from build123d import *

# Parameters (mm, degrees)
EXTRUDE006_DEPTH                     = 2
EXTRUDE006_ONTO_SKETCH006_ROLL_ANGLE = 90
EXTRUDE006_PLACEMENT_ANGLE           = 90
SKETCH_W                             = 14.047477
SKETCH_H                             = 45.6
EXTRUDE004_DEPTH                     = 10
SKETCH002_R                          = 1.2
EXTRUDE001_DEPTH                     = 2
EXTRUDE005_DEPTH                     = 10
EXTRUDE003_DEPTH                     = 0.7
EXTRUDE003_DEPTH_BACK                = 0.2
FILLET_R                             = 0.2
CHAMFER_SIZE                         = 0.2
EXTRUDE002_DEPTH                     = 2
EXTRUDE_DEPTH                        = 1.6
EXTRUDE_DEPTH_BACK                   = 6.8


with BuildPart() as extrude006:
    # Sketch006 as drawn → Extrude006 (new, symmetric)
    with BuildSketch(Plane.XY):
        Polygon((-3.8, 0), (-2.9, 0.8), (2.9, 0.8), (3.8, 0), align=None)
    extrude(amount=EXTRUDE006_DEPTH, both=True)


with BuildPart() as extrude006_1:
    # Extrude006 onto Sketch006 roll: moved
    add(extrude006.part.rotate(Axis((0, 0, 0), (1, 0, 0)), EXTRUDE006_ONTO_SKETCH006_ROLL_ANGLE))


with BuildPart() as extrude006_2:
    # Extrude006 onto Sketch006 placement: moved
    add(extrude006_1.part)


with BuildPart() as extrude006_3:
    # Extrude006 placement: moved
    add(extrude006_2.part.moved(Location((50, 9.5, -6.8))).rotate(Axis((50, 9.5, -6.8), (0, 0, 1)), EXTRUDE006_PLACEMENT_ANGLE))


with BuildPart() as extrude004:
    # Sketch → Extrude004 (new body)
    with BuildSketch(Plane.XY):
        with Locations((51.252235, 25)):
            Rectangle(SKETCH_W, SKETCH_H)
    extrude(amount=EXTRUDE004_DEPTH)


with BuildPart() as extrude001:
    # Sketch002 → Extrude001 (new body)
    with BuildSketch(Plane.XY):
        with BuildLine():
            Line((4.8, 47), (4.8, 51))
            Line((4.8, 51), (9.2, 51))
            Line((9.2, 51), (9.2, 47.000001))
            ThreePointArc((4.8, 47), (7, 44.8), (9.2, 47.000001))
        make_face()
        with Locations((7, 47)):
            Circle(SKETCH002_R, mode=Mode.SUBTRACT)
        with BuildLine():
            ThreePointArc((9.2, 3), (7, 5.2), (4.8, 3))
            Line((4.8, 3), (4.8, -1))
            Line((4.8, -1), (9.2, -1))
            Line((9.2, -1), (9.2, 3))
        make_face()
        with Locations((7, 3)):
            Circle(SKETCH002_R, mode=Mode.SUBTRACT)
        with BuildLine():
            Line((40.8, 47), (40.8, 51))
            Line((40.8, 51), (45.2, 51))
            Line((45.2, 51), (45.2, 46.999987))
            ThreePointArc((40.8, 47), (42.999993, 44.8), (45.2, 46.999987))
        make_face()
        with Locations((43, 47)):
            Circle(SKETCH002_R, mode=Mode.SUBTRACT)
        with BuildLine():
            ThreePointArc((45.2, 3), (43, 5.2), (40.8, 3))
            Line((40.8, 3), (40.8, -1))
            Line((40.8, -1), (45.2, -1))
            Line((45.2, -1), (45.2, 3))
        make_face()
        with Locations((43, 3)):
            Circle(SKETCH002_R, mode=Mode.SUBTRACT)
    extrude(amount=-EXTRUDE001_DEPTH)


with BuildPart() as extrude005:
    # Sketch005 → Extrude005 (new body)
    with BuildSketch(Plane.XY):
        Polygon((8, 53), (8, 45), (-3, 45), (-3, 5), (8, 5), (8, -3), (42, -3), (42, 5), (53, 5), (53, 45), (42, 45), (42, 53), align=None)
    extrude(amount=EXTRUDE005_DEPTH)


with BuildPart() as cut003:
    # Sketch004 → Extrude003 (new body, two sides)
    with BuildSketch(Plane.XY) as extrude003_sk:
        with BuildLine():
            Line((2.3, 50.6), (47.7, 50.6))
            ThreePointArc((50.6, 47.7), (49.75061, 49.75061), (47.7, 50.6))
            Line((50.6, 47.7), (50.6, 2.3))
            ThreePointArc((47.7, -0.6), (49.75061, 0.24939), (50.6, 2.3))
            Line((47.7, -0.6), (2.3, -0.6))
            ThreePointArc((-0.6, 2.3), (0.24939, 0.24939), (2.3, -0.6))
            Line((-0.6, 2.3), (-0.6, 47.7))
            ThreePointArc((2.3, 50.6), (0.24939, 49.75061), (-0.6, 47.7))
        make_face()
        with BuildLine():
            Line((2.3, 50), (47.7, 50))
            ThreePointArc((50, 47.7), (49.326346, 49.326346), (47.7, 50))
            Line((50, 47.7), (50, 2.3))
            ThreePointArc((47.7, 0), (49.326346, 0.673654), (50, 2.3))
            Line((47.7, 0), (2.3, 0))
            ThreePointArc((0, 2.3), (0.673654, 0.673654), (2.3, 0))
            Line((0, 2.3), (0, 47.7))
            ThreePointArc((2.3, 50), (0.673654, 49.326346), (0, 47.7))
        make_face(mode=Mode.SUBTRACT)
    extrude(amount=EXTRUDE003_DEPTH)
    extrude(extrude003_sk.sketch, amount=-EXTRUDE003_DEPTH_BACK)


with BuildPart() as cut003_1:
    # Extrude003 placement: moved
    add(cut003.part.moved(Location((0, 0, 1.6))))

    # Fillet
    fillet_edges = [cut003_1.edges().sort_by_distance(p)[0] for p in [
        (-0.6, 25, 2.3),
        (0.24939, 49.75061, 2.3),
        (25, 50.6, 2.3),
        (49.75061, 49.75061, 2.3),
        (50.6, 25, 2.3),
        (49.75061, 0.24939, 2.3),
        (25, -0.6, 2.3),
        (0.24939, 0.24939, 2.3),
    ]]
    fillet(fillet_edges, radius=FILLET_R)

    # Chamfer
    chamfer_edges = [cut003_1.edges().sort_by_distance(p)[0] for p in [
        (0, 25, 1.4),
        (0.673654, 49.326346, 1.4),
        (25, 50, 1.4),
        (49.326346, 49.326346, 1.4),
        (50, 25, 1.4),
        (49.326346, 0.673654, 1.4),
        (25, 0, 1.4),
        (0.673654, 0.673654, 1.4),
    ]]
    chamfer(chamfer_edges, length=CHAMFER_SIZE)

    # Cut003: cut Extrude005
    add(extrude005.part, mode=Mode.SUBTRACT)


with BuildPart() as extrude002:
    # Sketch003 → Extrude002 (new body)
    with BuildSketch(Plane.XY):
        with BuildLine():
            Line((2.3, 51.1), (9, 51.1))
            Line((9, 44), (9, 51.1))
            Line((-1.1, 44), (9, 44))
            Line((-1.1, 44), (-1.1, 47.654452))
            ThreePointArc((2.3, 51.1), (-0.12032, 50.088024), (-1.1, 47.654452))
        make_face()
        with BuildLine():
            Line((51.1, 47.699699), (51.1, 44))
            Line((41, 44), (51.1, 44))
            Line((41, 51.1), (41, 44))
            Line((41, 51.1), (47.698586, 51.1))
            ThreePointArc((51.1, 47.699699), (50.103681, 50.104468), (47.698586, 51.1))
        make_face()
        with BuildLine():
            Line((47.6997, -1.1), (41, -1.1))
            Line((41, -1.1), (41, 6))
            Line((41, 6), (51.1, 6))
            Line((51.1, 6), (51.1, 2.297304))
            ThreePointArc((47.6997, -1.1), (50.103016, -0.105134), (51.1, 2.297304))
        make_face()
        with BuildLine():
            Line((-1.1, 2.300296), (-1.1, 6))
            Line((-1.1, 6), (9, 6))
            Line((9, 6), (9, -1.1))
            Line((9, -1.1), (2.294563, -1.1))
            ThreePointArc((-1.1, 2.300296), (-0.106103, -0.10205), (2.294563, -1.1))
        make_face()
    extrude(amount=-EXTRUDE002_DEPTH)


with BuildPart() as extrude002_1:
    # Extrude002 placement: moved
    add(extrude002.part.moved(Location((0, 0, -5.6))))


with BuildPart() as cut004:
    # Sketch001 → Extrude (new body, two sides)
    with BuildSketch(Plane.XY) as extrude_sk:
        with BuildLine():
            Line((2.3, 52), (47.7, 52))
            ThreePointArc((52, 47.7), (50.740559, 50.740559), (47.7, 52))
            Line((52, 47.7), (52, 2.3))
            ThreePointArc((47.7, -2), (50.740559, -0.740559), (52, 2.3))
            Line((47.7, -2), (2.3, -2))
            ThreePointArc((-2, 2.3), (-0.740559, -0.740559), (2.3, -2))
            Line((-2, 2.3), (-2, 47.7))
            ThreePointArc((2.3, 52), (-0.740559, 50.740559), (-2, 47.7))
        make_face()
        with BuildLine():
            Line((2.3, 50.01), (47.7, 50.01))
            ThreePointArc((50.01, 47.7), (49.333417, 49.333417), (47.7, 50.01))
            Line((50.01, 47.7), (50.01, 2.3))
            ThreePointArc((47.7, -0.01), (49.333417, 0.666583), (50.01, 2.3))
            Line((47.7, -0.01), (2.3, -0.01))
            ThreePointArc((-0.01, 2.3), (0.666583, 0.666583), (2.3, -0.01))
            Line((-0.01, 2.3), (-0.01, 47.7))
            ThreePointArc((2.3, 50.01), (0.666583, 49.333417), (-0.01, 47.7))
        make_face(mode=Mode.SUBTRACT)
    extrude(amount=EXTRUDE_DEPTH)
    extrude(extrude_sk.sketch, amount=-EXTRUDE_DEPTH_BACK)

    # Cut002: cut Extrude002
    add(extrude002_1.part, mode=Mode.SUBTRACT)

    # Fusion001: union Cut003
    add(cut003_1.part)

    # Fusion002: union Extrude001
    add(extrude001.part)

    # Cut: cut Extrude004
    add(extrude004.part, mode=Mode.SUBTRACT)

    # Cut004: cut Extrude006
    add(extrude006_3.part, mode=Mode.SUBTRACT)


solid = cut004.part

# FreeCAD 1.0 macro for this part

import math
import FreeCAD as App
import Part
import Sketcher
Q = App.Units.Quantity


def edges_at(feature, points):
    """Names of the edges that pass closest to the given points."""
    edges = feature.Shape.Edges
    near = lambda p: min(range(len(edges)), key=lambda i: edges[i].distToShape(Part.Vertex(*p))[0])
    return sorted({f"Edge{near(p) + 1}" for p in points})


def add_polygon(sketch, points):
    """Adds a closed chain of lines whose ends are joined by coincident constraints."""
    first, n = sketch.GeometryCount, len(points)
    for a, b in zip(points, points[1:] + points[:1]):
        sketch.addGeometry(Part.LineSegment(App.Vector(*a, 0), App.Vector(*b, 0)), False)
    for i in range(n):
        sketch.addConstraint(Sketcher.Constraint("Coincident", first + i, 2, first + (i + 1) % n, 1))

doc = App.newDocument("Part")
body = doc.addObject("PartDesign::Body", "Body")

# Sketch on XY plane
sketch1 = body.newObject("Sketcher::SketchObject", "Sketch")
sketch1.AttachmentSupport = (doc.getObject("XY_Plane"), [""])
sketch1.MapMode = "FlatFace"
add_polygon(sketch1, [(-2.9, 0.8), (-3.8, 0), (3.8, 0), (2.9, 0.8)])  # lines 0-3
sketch1.addConstraint([
    Sketcher.Constraint("Horizontal", 1),
    Sketcher.Constraint("Horizontal", 3),
    Sketcher.Constraint("Symmetric", 0, 2, 1, 2, -1, 1),
    Sketcher.Constraint("Equal", 0, 2),
    Sketcher.Constraint("DistanceX", 1, 1, 1, 2, Q("7.6 mm")),
    Sketcher.Constraint("DistanceX", 3, 2, 3, 1, Q("5.8 mm")),
    Sketcher.Constraint("DistanceY", -1, 1, 2, 2, Q("0.8 mm")),
])
pad1 = body.newObject("PartDesign::Pad", "Pad")
pad1.Profile = sketch1
pad1.Length = 4
pad1.Midplane = True
body2 = doc.addObject("PartDesign::Body", "Body001")
doc.recompute()

body.Placement = App.Placement(App.Vector(0, 0, 0), App.Rotation(App.Vector(1, 0, 0), 90))
boolean = body2.newObject("PartDesign::Boolean", "Boolean")
boolean.Type = "Fuse"
boolean.addObjects([body])
body3 = doc.addObject("PartDesign::Body", "Body002")
doc.recompute()

body2.Placement = App.Placement(App.Vector(50, 9.5, -6.8), App.Rotation(App.Vector(0, 0, 1), 90))
boolean2 = body3.newObject("PartDesign::Boolean", "Boolean001")
boolean2.Type = "Fuse"
boolean2.addObjects([body2])
body4 = doc.addObject("PartDesign::Body", "Body003")

# Sketch on XY plane
sketch2 = body4.newObject("Sketcher::SketchObject", "Sketch001")
sketch2.AttachmentSupport = (doc.getObject("XY_Plane003"), [""])
sketch2.MapMode = "FlatFace"
add_polygon(sketch2, [(44, 48), (44, 2), (58, 2), (58, 48)])  # lines 0-3
sketch2.addConstraint([
    Sketcher.Constraint("Vertical", 0),
    Sketcher.Constraint("Horizontal", 1),
    Sketcher.Constraint("Vertical", 2),
    Sketcher.Constraint("Horizontal", 3),
    Sketcher.Constraint("DistanceY", 0, 2, 0, 1, Q("45.6 mm")),
    Sketcher.Constraint("DistanceY", -1, 1, 0, 2, Q("2.2 mm")),
    Sketcher.Constraint("DistanceX", 1, 1, 1, 2, Q("14.047477 mm")),
    Sketcher.Constraint("DistanceX", -1, 1, 0, 2, Q("44.228496 mm")),
])
pad2 = body4.newObject("PartDesign::Pad", "Pad001")
pad2.Profile = sketch2
pad2.Length = 10
body5 = doc.addObject("PartDesign::Body", "Body004")
body5.AllowCompound = True

# Sketch on XY plane
sketch3 = body5.newObject("Sketcher::SketchObject", "Sketch002")
sketch3.AttachmentSupport = (doc.getObject("XY_Plane004"), [""])
sketch3.MapMode = "FlatFace"
sketch3.addGeometry([
    Part.LineSegment(App.Vector(4.8, 51, 0), App.Vector(4.8, 47, 0)),  # 0
    Part.ArcOfCircle(Part.Circle(App.Vector(7, 47, 0), App.Vector(0, 0, 1), 2.2), math.radians(180), math.radians(360)),  # 1
    Part.LineSegment(App.Vector(9.2, 47, 0), App.Vector(9.2, 51, 0)),  # 2
    Part.LineSegment(App.Vector(9.2, 51, 0), App.Vector(4.8, 51, 0)),  # 3
    Part.Circle(App.Vector(7, 47, 0), App.Vector(0, 0, 1), 1.2),  # 4
    Part.ArcOfCircle(Part.Circle(App.Vector(7, 3, 0), App.Vector(0, 0, 1), 2.2), math.radians(0), math.radians(180)),  # 5
    Part.LineSegment(App.Vector(4.8, 3, 0), App.Vector(4.8, -1, 0)),  # 6
    Part.LineSegment(App.Vector(4.8, -1, 0), App.Vector(9.2, -1, 0)),  # 7
    Part.LineSegment(App.Vector(9.2, -1, 0), App.Vector(9.2, 3, 0)),  # 8
    Part.Circle(App.Vector(7, 3, 0), App.Vector(0, 0, 1), 1.2),  # 9
    Part.LineSegment(App.Vector(40.8, 51, 0), App.Vector(40.8, 47, 0)),  # 10
    Part.ArcOfCircle(Part.Circle(App.Vector(43, 47, 0), App.Vector(0, 0, 1), 2.2), math.radians(180), math.radians(360)),  # 11
    Part.LineSegment(App.Vector(45.2, 47, 0), App.Vector(45.2, 51, 0)),  # 12
    Part.LineSegment(App.Vector(45.2, 51, 0), App.Vector(40.8, 51, 0)),  # 13
    Part.Circle(App.Vector(43, 47, 0), App.Vector(0, 0, 1), 1.2),  # 14
    Part.ArcOfCircle(Part.Circle(App.Vector(43, 3, 0), App.Vector(0, 0, 1), 2.2), math.radians(0), math.radians(180)),  # 15
    Part.LineSegment(App.Vector(40.8, 3, 0), App.Vector(40.8, -1, 0)),  # 16
    Part.LineSegment(App.Vector(40.8, -1, 0), App.Vector(45.2, -1, 0)),  # 17
    Part.LineSegment(App.Vector(45.2, -1, 0), App.Vector(45.2, 3, 0)),  # 18
    Part.Circle(App.Vector(43, 3, 0), App.Vector(0, 0, 1), 1.2),  # 19
], False)
sketch3.addConstraint([
    Sketcher.Constraint("Tangent", 0, 2, 1, 1),
    Sketcher.Constraint("Tangent", 1, 2, 2, 1),
    Sketcher.Constraint("Coincident", 2, 2, 3, 1),
    Sketcher.Constraint("Coincident", 3, 2, 0, 1),
    Sketcher.Constraint("Tangent", 5, 2, 6, 1),
    Sketcher.Constraint("Coincident", 6, 2, 7, 1),
    Sketcher.Constraint("Coincident", 7, 2, 8, 1),
    Sketcher.Constraint("Tangent", 8, 2, 5, 1),
    Sketcher.Constraint("Tangent", 10, 2, 11, 1),
    Sketcher.Constraint("Coincident", 11, 2, 12, 1),
    Sketcher.Constraint("Coincident", 12, 2, 13, 1),
    Sketcher.Constraint("Coincident", 13, 2, 10, 1),
    Sketcher.Constraint("Tangent", 15, 2, 16, 1),
    Sketcher.Constraint("Coincident", 16, 2, 17, 1),
    Sketcher.Constraint("Coincident", 17, 2, 18, 1),
    Sketcher.Constraint("Tangent", 18, 2, 15, 1),
    Sketcher.Constraint("Vertical", 0),
    Sketcher.Constraint("Vertical", 2),
    Sketcher.Constraint("Horizontal", 3),
    Sketcher.Constraint("Vertical", 6),
    Sketcher.Constraint("Horizontal", 7),
    Sketcher.Constraint("Vertical", 8),
    Sketcher.Constraint("Vertical", 10),
    Sketcher.Constraint("Vertical", 12),
    Sketcher.Constraint("Horizontal", 13),
    Sketcher.Constraint("Vertical", 16),
    Sketcher.Constraint("Horizontal", 17),
    Sketcher.Constraint("Vertical", 18),
    Sketcher.Constraint("Coincident", 4, 3, 1, 3),
    Sketcher.Constraint("Coincident", 9, 3, 5, 3),
    Sketcher.Constraint("Coincident", 14, 3, 11, 3),
    Sketcher.Constraint("Coincident", 19, 3, 15, 3),
    Sketcher.Constraint("Equal", 1, 5),
    Sketcher.Constraint("Equal", 4, 9),
    Sketcher.Constraint("Equal", 5, 11),
    Sketcher.Constraint("Equal", 9, 14),
    Sketcher.Constraint("Equal", 11, 15),
    Sketcher.Constraint("Equal", 14, 19),
    Sketcher.Constraint("Horizontal", 4, 3, 11, 3),
    Sketcher.Constraint("Horizontal", 9, 3, 15, 3),
    Sketcher.Constraint("Horizontal", 3, 2, 12, 2),
    Sketcher.Constraint("Horizontal", 7, 2, 16, 2),
    Sketcher.Constraint("Vertical", 4, 3, 5, 3),
    Sketcher.Constraint("Vertical", 14, 3, 15, 3),
    Sketcher.Constraint("Equal", 2, 6),
    Sketcher.Constraint("Diameter", 4, Q("2.4 mm")),
    Sketcher.Constraint("Radius", 1, Q("2.2 mm")),
    Sketcher.Constraint("DistanceY", 0, 2, 0, 1, Q("4 mm")),
    Sketcher.Constraint("DistanceX", -1, 1, 1, 3, Q("7 mm")),
    Sketcher.Constraint("DistanceY", -1, 1, 1, 3, Q("47 mm")),
    Sketcher.Constraint("DistanceY", -1, 1, 5, 3, Q("3 mm")),
    Sketcher.Constraint("DistanceX", -1, 1, 11, 3, Q("43 mm")),
    Sketcher.Constraint("DistanceY", 12, 1, 12, 2, Q("4.000013 mm")),
])
pad3 = body5.newObject("PartDesign::Pad", "Pad002")
pad3.Profile = sketch3
pad3.Length = 2
pad3.Reversed = True
body6 = doc.addObject("PartDesign::Body", "Body005")

# Sketch on XY plane
sketch4 = body6.newObject("Sketcher::SketchObject", "Sketch003")
sketch4.AttachmentSupport = (doc.getObject("XY_Plane005"), [""])
sketch4.MapMode = "FlatFace"
add_polygon(sketch4, [(8, 53), (8, 45), (-3, 45), (-3, 5), (8, 5), (8, -3), (42, -3), (42, 5), (53, 5), (53, 45), (42, 45), (42, 53)])  # lines 0-11
sketch4.addConstraint([
    Sketcher.Constraint("Vertical", 0),
    Sketcher.Constraint("Horizontal", 1),
    Sketcher.Constraint("Vertical", 2),
    Sketcher.Constraint("Horizontal", 3),
    Sketcher.Constraint("Vertical", 4),
    Sketcher.Constraint("Horizontal", 5),
    Sketcher.Constraint("Vertical", 6),
    Sketcher.Constraint("Horizontal", 7),
    Sketcher.Constraint("Vertical", 8),
    Sketcher.Constraint("Horizontal", 9),
    Sketcher.Constraint("Vertical", 10),
    Sketcher.Constraint("Horizontal", 11),
    Sketcher.Constraint("Horizontal", 3, 2, 6, 2),
    Sketcher.Constraint("Horizontal", 1, 2, 8, 2),
    Sketcher.Constraint("Vertical", 0, 2, 3, 2),
    Sketcher.Constraint("Vertical", 6, 2, 9, 2),
    Sketcher.Constraint("Equal", 3, 7),
    Sketcher.Constraint("Equal", 0, 4),
    Sketcher.Constraint("DistanceX", 1, 2, 1, 1, Q("11 mm")),
    Sketcher.Constraint("DistanceX", 5, 1, 5, 2, Q("34 mm")),
    Sketcher.Constraint("DistanceY", 0, 2, 0, 1, Q("8 mm")),
    Sketcher.Constraint("DistanceY", 2, 2, 2, 1, Q("40 mm")),
    Sketcher.Constraint("DistanceX", -1, 1, 0, 2, Q("8 mm")),
    Sketcher.Constraint("DistanceY", -1, 1, 0, 2, Q("45 mm")),
])
pad4 = body6.newObject("PartDesign::Pad", "Pad003")
pad4.Profile = sketch4
pad4.Length = 10
body7 = doc.addObject("PartDesign::Body", "Body006")

# Sketch on XY plane
sketch5 = body7.newObject("Sketcher::SketchObject", "Sketch004")
sketch5.AttachmentSupport = (doc.getObject("XY_Plane006"), [""])
sketch5.MapMode = "FlatFace"
sketch5.addGeometry([
    Part.LineSegment(App.Vector(47.7, 50.6, 0), App.Vector(2.3, 50.6, 0)),  # 0
    Part.ArcOfCircle(Part.Circle(App.Vector(2.3, 47.7, 0), App.Vector(0, 0, 1), 2.9), math.radians(90), math.radians(180)),  # 1
    Part.LineSegment(App.Vector(-0.6, 47.7, 0), App.Vector(-0.6, 2.3, 0)),  # 2
    Part.ArcOfCircle(Part.Circle(App.Vector(2.3, 2.3, 0), App.Vector(0, 0, 1), 2.9), math.radians(180), math.radians(270)),  # 3
    Part.LineSegment(App.Vector(2.3, -0.6, 0), App.Vector(47.7, -0.6, 0)),  # 4
    Part.ArcOfCircle(Part.Circle(App.Vector(47.7, 2.3, 0), App.Vector(0, 0, 1), 2.9), math.radians(-90), math.radians(0)),  # 5
    Part.LineSegment(App.Vector(50.6, 2.3, 0), App.Vector(50.6, 47.7, 0)),  # 6
    Part.ArcOfCircle(Part.Circle(App.Vector(47.7, 47.7, 0), App.Vector(0, 0, 1), 2.9), math.radians(0), math.radians(90)),  # 7
    Part.LineSegment(App.Vector(2.3, 50, 0), App.Vector(47.7, 50, 0)),  # 8
    Part.ArcOfCircle(Part.Circle(App.Vector(47.7, 47.7, 0), App.Vector(0, 0, 1), 2.3), math.radians(0), math.radians(90)),  # 9
    Part.LineSegment(App.Vector(50, 47.7, 0), App.Vector(50, 2.3, 0)),  # 10
    Part.ArcOfCircle(Part.Circle(App.Vector(47.7, 2.3, 0), App.Vector(0, 0, 1), 2.3), math.radians(-90), math.radians(0)),  # 11
    Part.LineSegment(App.Vector(47.7, 0, 0), App.Vector(2.3, 0, 0)),  # 12
    Part.ArcOfCircle(Part.Circle(App.Vector(2.3, 2.3, 0), App.Vector(0, 0, 1), 2.3), math.radians(180), math.radians(270)),  # 13
    Part.LineSegment(App.Vector(0, 2.3, 0), App.Vector(0, 47.7, 0)),  # 14
    Part.ArcOfCircle(Part.Circle(App.Vector(2.3, 47.7, 0), App.Vector(0, 0, 1), 2.3), math.radians(90), math.radians(180)),  # 15
], False)
sketch5.addConstraint([
    Sketcher.Constraint("Tangent", 0, 2, 1, 1),
    Sketcher.Constraint("Tangent", 1, 2, 2, 1),
    Sketcher.Constraint("Tangent", 2, 2, 3, 1),
    Sketcher.Constraint("Tangent", 3, 2, 4, 1),
    Sketcher.Constraint("Tangent", 4, 2, 5, 1),
    Sketcher.Constraint("Tangent", 5, 2, 6, 1),
    Sketcher.Constraint("Tangent", 6, 2, 7, 1),
    Sketcher.Constraint("Tangent", 7, 2, 0, 1),
    Sketcher.Constraint("Tangent", 8, 2, 9, 2),
    Sketcher.Constraint("Tangent", 9, 1, 10, 1),
    Sketcher.Constraint("Tangent", 10, 2, 11, 2),
    Sketcher.Constraint("Tangent", 11, 1, 12, 1),
    Sketcher.Constraint("Tangent", 12, 2, 13, 2),
    Sketcher.Constraint("Tangent", 13, 1, 14, 1),
    Sketcher.Constraint("Tangent", 14, 2, 15, 2),
    Sketcher.Constraint("Tangent", 15, 1, 8, 1),
    Sketcher.Constraint("Horizontal", 0),
    Sketcher.Constraint("Vertical", 2),
    Sketcher.Constraint("Horizontal", 4),
    Sketcher.Constraint("Vertical", 6),
    Sketcher.Constraint("Horizontal", 8),
    Sketcher.Constraint("Vertical", 10),
    Sketcher.Constraint("Horizontal", 12),
    Sketcher.Constraint("Vertical", 14),
    Sketcher.Constraint("Coincident", 9, 3, 7, 3),
    Sketcher.Constraint("Coincident", 11, 3, 5, 3),
    Sketcher.Constraint("Coincident", 13, 3, 3, 3),
    Sketcher.Constraint("Equal", 1, 3),
    Sketcher.Constraint("Equal", 3, 5),
    Sketcher.Constraint("Equal", 5, 7),
    Sketcher.Constraint("Equal", 13, 15),
    Sketcher.Constraint("PointOnObject", 11, 1, -1),
    Sketcher.Constraint("PointOnObject", 13, 1, -2),
    Sketcher.Constraint("Equal", 12, 2),
    Sketcher.Constraint("Radius", 1, Q("2.899999 mm")),
    Sketcher.Constraint("Radius", 9, Q("2.299999 mm")),
    Sketcher.Constraint("DistanceX", 0, 2, 0, 1, Q("45.4 mm")),
])
pad5 = body7.newObject("PartDesign::Pad", "Pad004")
pad5.Profile = sketch5
pad5.Type = "TwoLengths"
pad5.Length = 0.7
pad5.Length2 = 0.2
body8 = doc.addObject("PartDesign::Body", "Body007")
body8.AllowCompound = True
doc.recompute()

body7.Placement = App.Placement(App.Vector(0, 0, 1.6), App.Rotation(App.Vector(0, 0, 1), 0))
boolean3 = body8.newObject("PartDesign::Boolean", "Boolean002")
boolean3.Type = "Fuse"
boolean3.addObjects([body7])
doc.recompute()

fillet = body8.newObject("PartDesign::Fillet", "Fillet")
fillet.Base = (boolean3, edges_at(boolean3, [
    (-0.6, 25, 2.3),
    (0.249, 49.751, 2.3),
    (25, 50.6, 2.3),
    (49.751, 49.751, 2.3),
    (50.6, 25, 2.3),
    (49.751, 0.249, 2.3),
    (25, -0.6, 2.3),
    (0.249, 0.249, 2.3),
]))
fillet.Radius = 0.2
doc.recompute()

chamfer = body8.newObject("PartDesign::Chamfer", "Chamfer")
chamfer.Base = (fillet, edges_at(fillet, [
    (0, 25, 1.4),
    (0.674, 49.326, 1.4),
    (25, 50, 1.4),
    (49.326, 49.326, 1.4),
    (50, 25, 1.4),
    (49.326, 0.674, 1.4),
    (25, 0, 1.4),
    (0.674, 0.674, 1.4),
]))
chamfer.Size = 0.2
doc.recompute()

boolean4 = body8.newObject("PartDesign::Boolean", "Boolean003")
boolean4.Type = "Cut"
boolean4.addObjects([body6])
body9 = doc.addObject("PartDesign::Body", "Body008")
body9.AllowCompound = True

# Sketch on XY plane
sketch6 = body9.newObject("Sketcher::SketchObject", "Sketch005")
sketch6.AttachmentSupport = (doc.getObject("XY_Plane008"), [""])
sketch6.MapMode = "FlatFace"
sketch6.addGeometry([
    Part.LineSegment(App.Vector(9, 51.1, 0), App.Vector(2.3, 51.1, 0)),  # 0
    Part.ArcOfCircle(Part.Circle(App.Vector(2.300001, 47.699698, 0), App.Vector(0, 0, 1), 3.400302), math.radians(90.000011), math.radians(180.762432)),  # 1
    Part.LineSegment(App.Vector(-1.1, 47.654452, 0), App.Vector(-1.1, 44, 0)),  # 2
    Part.LineSegment(App.Vector(-1.1, 44, 0), App.Vector(9, 44, 0)),  # 3
    Part.LineSegment(App.Vector(9, 44, 0), App.Vector(9, 51.1, 0)),  # 4
    Part.LineSegment(App.Vector(51.1, 44, 0), App.Vector(51.1, 47.699699, 0)),  # 5
    Part.ArcOfCircle(Part.Circle(App.Vector(47.699697, 47.699698, 0), App.Vector(0, 0, 1), 3.400303), math.radians(0.000023), math.radians(90.018728)),  # 6
    Part.LineSegment(App.Vector(47.698586, 51.1, 0), App.Vector(41, 51.1, 0)),  # 7
    Part.LineSegment(App.Vector(41, 51.1, 0), App.Vector(41, 44, 0)),  # 8
    Part.LineSegment(App.Vector(41, 44, 0), App.Vector(51.1, 44, 0)),  # 9
    Part.LineSegment(App.Vector(41, -1.1, 0), App.Vector(47.6997, -1.1, 0)),  # 10
    Part.ArcOfCircle(Part.Circle(App.Vector(47.699699, 2.300302, 0), App.Vector(0, 0, 1), 3.400302), math.radians(-89.999987), math.radians(-0.050519)),  # 11
    Part.LineSegment(App.Vector(51.1, 2.297304, 0), App.Vector(51.1, 6, 0)),  # 12
    Part.LineSegment(App.Vector(51.1, 6, 0), App.Vector(41, 6, 0)),  # 13
    Part.LineSegment(App.Vector(41, 6, 0), App.Vector(41, -1.1, 0)),  # 14
    Part.LineSegment(App.Vector(-1.1, 6, 0), App.Vector(-1.1, 2.300296, 0)),  # 15
    Part.ArcOfCircle(Part.Circle(App.Vector(2.300301, 2.300296, 0), App.Vector(0, 0, 1), 3.400301), math.radians(-180), math.radians(-90.096684)),  # 16
    Part.LineSegment(App.Vector(2.294563, -1.1, 0), App.Vector(9, -1.1, 0)),  # 17
    Part.LineSegment(App.Vector(9, -1.1, 0), App.Vector(9, 6, 0)),  # 18
    Part.LineSegment(App.Vector(9, 6, 0), App.Vector(-1.1, 6, 0)),  # 19
], False)
sketch6.addConstraint([
    Sketcher.Constraint("Coincident", 0, 2, 1, 1),
    Sketcher.Constraint("Coincident", 1, 2, 2, 1),
    Sketcher.Constraint("Coincident", 2, 2, 3, 1),
    Sketcher.Constraint("Coincident", 3, 2, 4, 1),
    Sketcher.Constraint("Coincident", 4, 2, 0, 1),
    Sketcher.Constraint("Coincident", 5, 2, 6, 1),
    Sketcher.Constraint("Coincident", 6, 2, 7, 1),
    Sketcher.Constraint("Coincident", 7, 2, 8, 1),
    Sketcher.Constraint("Coincident", 8, 2, 9, 1),
    Sketcher.Constraint("Coincident", 9, 2, 5, 1),
    Sketcher.Constraint("Coincident", 10, 2, 11, 1),
    Sketcher.Constraint("Coincident", 11, 2, 12, 1),
    Sketcher.Constraint("Coincident", 12, 2, 13, 1),
    Sketcher.Constraint("Coincident", 13, 2, 14, 1),
    Sketcher.Constraint("Coincident", 14, 2, 10, 1),
    Sketcher.Constraint("Coincident", 15, 2, 16, 1),
    Sketcher.Constraint("Coincident", 16, 2, 17, 1),
    Sketcher.Constraint("Coincident", 17, 2, 18, 1),
    Sketcher.Constraint("Coincident", 18, 2, 19, 1),
    Sketcher.Constraint("Coincident", 19, 2, 15, 1),
    Sketcher.Constraint("Horizontal", 0),
    Sketcher.Constraint("Vertical", 2),
    Sketcher.Constraint("Horizontal", 3),
    Sketcher.Constraint("Vertical", 4),
    Sketcher.Constraint("Vertical", 5),
    Sketcher.Constraint("Horizontal", 7),
    Sketcher.Constraint("Vertical", 8),
    Sketcher.Constraint("Horizontal", 9),
    Sketcher.Constraint("Horizontal", 10),
    Sketcher.Constraint("Vertical", 12),
    Sketcher.Constraint("Horizontal", 13),
    Sketcher.Constraint("Vertical", 14),
    Sketcher.Constraint("Vertical", 15),
    Sketcher.Constraint("Horizontal", 17),
    Sketcher.Constraint("Vertical", 18),
    Sketcher.Constraint("Horizontal", 19),
    Sketcher.Constraint("DistanceX", 0, 2, 0, 1, Q("6.7 mm")),
    Sketcher.Constraint("DistanceX", 3, 1, 3, 2, Q("10.1 mm")),
    Sketcher.Constraint("DistanceX", 9, 1, 9, 2, Q("10.1 mm")),
    Sketcher.Constraint("DistanceX", 13, 2, 13, 1, Q("10.1 mm")),
    Sketcher.Constraint("DistanceX", 19, 2, 19, 1, Q("10.1 mm")),
    Sketcher.Constraint("DistanceY", 4, 1, 4, 2, Q("7.1 mm")),
    Sketcher.Constraint("DistanceY", 8, 2, 8, 1, Q("7.1 mm")),
    Sketcher.Constraint("DistanceY", 14, 2, 14, 1, Q("7.1 mm")),
    Sketcher.Constraint("DistanceY", 18, 1, 18, 2, Q("7.1 mm")),
    Sketcher.Constraint("DistanceY", -1, 1, 2, 2, Q("44 mm")),
    Sketcher.Constraint("DistanceX", -1, 1, 3, 2, Q("9 mm")),
    Sketcher.Constraint("DistanceX", -1, 1, 7, 2, Q("41 mm")),
    Sketcher.Constraint("DistanceY", -1, 1, 8, 2, Q("44 mm")),
    Sketcher.Constraint("DistanceY", -1, 1, 12, 2, Q("6 mm")),
    Sketcher.Constraint("DistanceX", -1, 1, 13, 2, Q("41 mm")),
    Sketcher.Constraint("DistanceX", -1, 1, 17, 2, Q("9 mm")),
    Sketcher.Constraint("DistanceY", -1, 1, 18, 2, Q("6 mm")),
    Sketcher.Constraint("DistanceX", -1, 1, 1, 3, Q("2.300001 mm")),
    Sketcher.Constraint("Radius", 1, Q("3.400302 mm")),
    Sketcher.Constraint("Radius", 16, Q("3.400301 mm")),
    Sketcher.Constraint("DistanceX", 10, 1, 10, 2, Q("6.6997 mm")),
    Sketcher.Constraint("DistanceY", 5, 1, 5, 2, Q("3.699699 mm")),
    Sketcher.Constraint("Radius", 6, Q("3.400303 mm")),
    Sketcher.Constraint("Radius", 11, Q("3.400302 mm")),
    Sketcher.Constraint("DistanceY", 11, 2, 11, 3, Q("0.002998 mm")),
    Sketcher.Constraint("DistanceX", 7, 2, 7, 1, Q("6.698586 mm")),
    Sketcher.Constraint("DistanceX", 17, 1, 17, 2, Q("6.705437 mm")),
    Sketcher.Constraint("DistanceY", 15, 2, 15, 1, Q("3.699704 mm")),
])
pad6 = body9.newObject("PartDesign::Pad", "Pad005")
pad6.Profile = sketch6
pad6.Length = 2
pad6.Reversed = True
body10 = doc.addObject("PartDesign::Body", "Body009")
body10.AllowCompound = True
doc.recompute()

body9.Placement = App.Placement(App.Vector(0, 0, -5.6), App.Rotation(App.Vector(0, 0, 1), 0))
boolean5 = body10.newObject("PartDesign::Boolean", "Boolean004")
boolean5.Type = "Fuse"
boolean5.addObjects([body9])
body11 = doc.addObject("PartDesign::Body", "Body010")

# Sketch on XY plane
sketch7 = body11.newObject("Sketcher::SketchObject", "Sketch006")
sketch7.AttachmentSupport = (doc.getObject("XY_Plane010"), [""])
sketch7.MapMode = "FlatFace"
sketch7.addGeometry([
    Part.LineSegment(App.Vector(47.7, 52, 0), App.Vector(2.3, 52, 0)),  # 0
    Part.ArcOfCircle(Part.Circle(App.Vector(2.3, 47.7, 0), App.Vector(0, 0, 1), 4.3), math.radians(90), math.radians(180)),  # 1
    Part.LineSegment(App.Vector(-2, 47.7, 0), App.Vector(-2, 2.3, 0)),  # 2
    Part.ArcOfCircle(Part.Circle(App.Vector(2.3, 2.3, 0), App.Vector(0, 0, 1), 4.3), math.radians(-180), math.radians(-90)),  # 3
    Part.LineSegment(App.Vector(2.3, -2, 0), App.Vector(47.7, -2, 0)),  # 4
    Part.ArcOfCircle(Part.Circle(App.Vector(47.7, 2.3, 0), App.Vector(0, 0, 1), 4.3), math.radians(-90), math.radians(0)),  # 5
    Part.LineSegment(App.Vector(52, 2.3, 0), App.Vector(52, 47.7, 0)),  # 6
    Part.ArcOfCircle(Part.Circle(App.Vector(47.7, 47.7, 0), App.Vector(0, 0, 1), 4.3), math.radians(0), math.radians(90)),  # 7
    Part.LineSegment(App.Vector(2.3, 50, 0), App.Vector(47.7, 50, 0)),  # 8
    Part.ArcOfCircle(Part.Circle(App.Vector(47.7, 47.7, 0), App.Vector(0, 0, 1), 2.3), math.radians(0), math.radians(90)),  # 9
    Part.LineSegment(App.Vector(50, 47.7, 0), App.Vector(50, 2.3, 0)),  # 10
    Part.ArcOfCircle(Part.Circle(App.Vector(47.7, 2.3, 0), App.Vector(0, 0, 1), 2.3), math.radians(-90), math.radians(0)),  # 11
    Part.LineSegment(App.Vector(47.7, 0, 0), App.Vector(2.3, 0, 0)),  # 12
    Part.ArcOfCircle(Part.Circle(App.Vector(2.3, 2.3, 0), App.Vector(0, 0, 1), 2.3), math.radians(180), math.radians(270)),  # 13
    Part.LineSegment(App.Vector(0, 2.3, 0), App.Vector(0, 47.7, 0)),  # 14
    Part.ArcOfCircle(Part.Circle(App.Vector(2.3, 47.7, 0), App.Vector(0, 0, 1), 2.3), math.radians(90), math.radians(180)),  # 15
], False)
sketch7.addConstraint([
    Sketcher.Constraint("Tangent", 0, 2, 1, 1),
    Sketcher.Constraint("Tangent", 1, 2, 2, 1),
    Sketcher.Constraint("Tangent", 2, 2, 3, 1),
    Sketcher.Constraint("Tangent", 3, 2, 4, 1),
    Sketcher.Constraint("Tangent", 4, 2, 5, 1),
    Sketcher.Constraint("Tangent", 5, 2, 6, 1),
    Sketcher.Constraint("Tangent", 6, 2, 7, 1),
    Sketcher.Constraint("Tangent", 7, 2, 0, 1),
    Sketcher.Constraint("Tangent", 8, 2, 9, 2),
    Sketcher.Constraint("Tangent", 9, 1, 10, 1),
    Sketcher.Constraint("Tangent", 10, 2, 11, 2),
    Sketcher.Constraint("Tangent", 11, 1, 12, 1),
    Sketcher.Constraint("Tangent", 12, 2, 13, 2),
    Sketcher.Constraint("Tangent", 13, 1, 14, 1),
    Sketcher.Constraint("Tangent", 14, 2, 15, 2),
    Sketcher.Constraint("Tangent", 15, 1, 8, 1),
    Sketcher.Constraint("Horizontal", 0),
    Sketcher.Constraint("Vertical", 2),
    Sketcher.Constraint("Horizontal", 4),
    Sketcher.Constraint("Vertical", 6),
    Sketcher.Constraint("Horizontal", 8),
    Sketcher.Constraint("Vertical", 10),
    Sketcher.Constraint("Horizontal", 12),
    Sketcher.Constraint("Vertical", 14),
    Sketcher.Constraint("Coincident", 9, 3, 7, 3),
    Sketcher.Constraint("Coincident", 11, 3, 5, 3),
    Sketcher.Constraint("Coincident", 13, 3, 3, 3),
    Sketcher.Constraint("Equal", 1, 3),
    Sketcher.Constraint("Equal", 3, 5),
    Sketcher.Constraint("Equal", 5, 7),
    Sketcher.Constraint("Equal", 13, 15),
    Sketcher.Constraint("Equal", 12, 2),
    Sketcher.Constraint("Radius", 1, Q("4.300001 mm")),
    Sketcher.Constraint("Radius", 9, Q("2.309999 mm")),
    Sketcher.Constraint("DistanceX", 0, 2, 0, 1, Q("45.4 mm")),
    Sketcher.Constraint("DistanceY", -1, 1, 0, 2, Q("52 mm")),
    Sketcher.Constraint("DistanceX", 1, 2, -1, 1, Q("2 mm")),
])
pad7 = body11.newObject("PartDesign::Pad", "Pad006")
pad7.Profile = sketch7
pad7.Type = "TwoLengths"
pad7.Length = 1.6
pad7.Length2 = 6.8
doc.recompute()

boolean6 = body11.newObject("PartDesign::Boolean", "Boolean005")
boolean6.Type = "Cut"
boolean6.addObjects([body10])
doc.recompute()

boolean7 = body11.newObject("PartDesign::Boolean", "Boolean006")
boolean7.Type = "Fuse"
boolean7.addObjects([body8])
doc.recompute()

boolean8 = body11.newObject("PartDesign::Boolean", "Boolean007")
boolean8.Type = "Fuse"
boolean8.addObjects([body5])
doc.recompute()

boolean9 = body11.newObject("PartDesign::Boolean", "Boolean008")
boolean9.Type = "Cut"
boolean9.addObjects([body4])
doc.recompute()

boolean10 = body11.newObject("PartDesign::Boolean", "Boolean009")
boolean10.Type = "Cut"
boolean10.addObjects([body3])

doc.recompute()
